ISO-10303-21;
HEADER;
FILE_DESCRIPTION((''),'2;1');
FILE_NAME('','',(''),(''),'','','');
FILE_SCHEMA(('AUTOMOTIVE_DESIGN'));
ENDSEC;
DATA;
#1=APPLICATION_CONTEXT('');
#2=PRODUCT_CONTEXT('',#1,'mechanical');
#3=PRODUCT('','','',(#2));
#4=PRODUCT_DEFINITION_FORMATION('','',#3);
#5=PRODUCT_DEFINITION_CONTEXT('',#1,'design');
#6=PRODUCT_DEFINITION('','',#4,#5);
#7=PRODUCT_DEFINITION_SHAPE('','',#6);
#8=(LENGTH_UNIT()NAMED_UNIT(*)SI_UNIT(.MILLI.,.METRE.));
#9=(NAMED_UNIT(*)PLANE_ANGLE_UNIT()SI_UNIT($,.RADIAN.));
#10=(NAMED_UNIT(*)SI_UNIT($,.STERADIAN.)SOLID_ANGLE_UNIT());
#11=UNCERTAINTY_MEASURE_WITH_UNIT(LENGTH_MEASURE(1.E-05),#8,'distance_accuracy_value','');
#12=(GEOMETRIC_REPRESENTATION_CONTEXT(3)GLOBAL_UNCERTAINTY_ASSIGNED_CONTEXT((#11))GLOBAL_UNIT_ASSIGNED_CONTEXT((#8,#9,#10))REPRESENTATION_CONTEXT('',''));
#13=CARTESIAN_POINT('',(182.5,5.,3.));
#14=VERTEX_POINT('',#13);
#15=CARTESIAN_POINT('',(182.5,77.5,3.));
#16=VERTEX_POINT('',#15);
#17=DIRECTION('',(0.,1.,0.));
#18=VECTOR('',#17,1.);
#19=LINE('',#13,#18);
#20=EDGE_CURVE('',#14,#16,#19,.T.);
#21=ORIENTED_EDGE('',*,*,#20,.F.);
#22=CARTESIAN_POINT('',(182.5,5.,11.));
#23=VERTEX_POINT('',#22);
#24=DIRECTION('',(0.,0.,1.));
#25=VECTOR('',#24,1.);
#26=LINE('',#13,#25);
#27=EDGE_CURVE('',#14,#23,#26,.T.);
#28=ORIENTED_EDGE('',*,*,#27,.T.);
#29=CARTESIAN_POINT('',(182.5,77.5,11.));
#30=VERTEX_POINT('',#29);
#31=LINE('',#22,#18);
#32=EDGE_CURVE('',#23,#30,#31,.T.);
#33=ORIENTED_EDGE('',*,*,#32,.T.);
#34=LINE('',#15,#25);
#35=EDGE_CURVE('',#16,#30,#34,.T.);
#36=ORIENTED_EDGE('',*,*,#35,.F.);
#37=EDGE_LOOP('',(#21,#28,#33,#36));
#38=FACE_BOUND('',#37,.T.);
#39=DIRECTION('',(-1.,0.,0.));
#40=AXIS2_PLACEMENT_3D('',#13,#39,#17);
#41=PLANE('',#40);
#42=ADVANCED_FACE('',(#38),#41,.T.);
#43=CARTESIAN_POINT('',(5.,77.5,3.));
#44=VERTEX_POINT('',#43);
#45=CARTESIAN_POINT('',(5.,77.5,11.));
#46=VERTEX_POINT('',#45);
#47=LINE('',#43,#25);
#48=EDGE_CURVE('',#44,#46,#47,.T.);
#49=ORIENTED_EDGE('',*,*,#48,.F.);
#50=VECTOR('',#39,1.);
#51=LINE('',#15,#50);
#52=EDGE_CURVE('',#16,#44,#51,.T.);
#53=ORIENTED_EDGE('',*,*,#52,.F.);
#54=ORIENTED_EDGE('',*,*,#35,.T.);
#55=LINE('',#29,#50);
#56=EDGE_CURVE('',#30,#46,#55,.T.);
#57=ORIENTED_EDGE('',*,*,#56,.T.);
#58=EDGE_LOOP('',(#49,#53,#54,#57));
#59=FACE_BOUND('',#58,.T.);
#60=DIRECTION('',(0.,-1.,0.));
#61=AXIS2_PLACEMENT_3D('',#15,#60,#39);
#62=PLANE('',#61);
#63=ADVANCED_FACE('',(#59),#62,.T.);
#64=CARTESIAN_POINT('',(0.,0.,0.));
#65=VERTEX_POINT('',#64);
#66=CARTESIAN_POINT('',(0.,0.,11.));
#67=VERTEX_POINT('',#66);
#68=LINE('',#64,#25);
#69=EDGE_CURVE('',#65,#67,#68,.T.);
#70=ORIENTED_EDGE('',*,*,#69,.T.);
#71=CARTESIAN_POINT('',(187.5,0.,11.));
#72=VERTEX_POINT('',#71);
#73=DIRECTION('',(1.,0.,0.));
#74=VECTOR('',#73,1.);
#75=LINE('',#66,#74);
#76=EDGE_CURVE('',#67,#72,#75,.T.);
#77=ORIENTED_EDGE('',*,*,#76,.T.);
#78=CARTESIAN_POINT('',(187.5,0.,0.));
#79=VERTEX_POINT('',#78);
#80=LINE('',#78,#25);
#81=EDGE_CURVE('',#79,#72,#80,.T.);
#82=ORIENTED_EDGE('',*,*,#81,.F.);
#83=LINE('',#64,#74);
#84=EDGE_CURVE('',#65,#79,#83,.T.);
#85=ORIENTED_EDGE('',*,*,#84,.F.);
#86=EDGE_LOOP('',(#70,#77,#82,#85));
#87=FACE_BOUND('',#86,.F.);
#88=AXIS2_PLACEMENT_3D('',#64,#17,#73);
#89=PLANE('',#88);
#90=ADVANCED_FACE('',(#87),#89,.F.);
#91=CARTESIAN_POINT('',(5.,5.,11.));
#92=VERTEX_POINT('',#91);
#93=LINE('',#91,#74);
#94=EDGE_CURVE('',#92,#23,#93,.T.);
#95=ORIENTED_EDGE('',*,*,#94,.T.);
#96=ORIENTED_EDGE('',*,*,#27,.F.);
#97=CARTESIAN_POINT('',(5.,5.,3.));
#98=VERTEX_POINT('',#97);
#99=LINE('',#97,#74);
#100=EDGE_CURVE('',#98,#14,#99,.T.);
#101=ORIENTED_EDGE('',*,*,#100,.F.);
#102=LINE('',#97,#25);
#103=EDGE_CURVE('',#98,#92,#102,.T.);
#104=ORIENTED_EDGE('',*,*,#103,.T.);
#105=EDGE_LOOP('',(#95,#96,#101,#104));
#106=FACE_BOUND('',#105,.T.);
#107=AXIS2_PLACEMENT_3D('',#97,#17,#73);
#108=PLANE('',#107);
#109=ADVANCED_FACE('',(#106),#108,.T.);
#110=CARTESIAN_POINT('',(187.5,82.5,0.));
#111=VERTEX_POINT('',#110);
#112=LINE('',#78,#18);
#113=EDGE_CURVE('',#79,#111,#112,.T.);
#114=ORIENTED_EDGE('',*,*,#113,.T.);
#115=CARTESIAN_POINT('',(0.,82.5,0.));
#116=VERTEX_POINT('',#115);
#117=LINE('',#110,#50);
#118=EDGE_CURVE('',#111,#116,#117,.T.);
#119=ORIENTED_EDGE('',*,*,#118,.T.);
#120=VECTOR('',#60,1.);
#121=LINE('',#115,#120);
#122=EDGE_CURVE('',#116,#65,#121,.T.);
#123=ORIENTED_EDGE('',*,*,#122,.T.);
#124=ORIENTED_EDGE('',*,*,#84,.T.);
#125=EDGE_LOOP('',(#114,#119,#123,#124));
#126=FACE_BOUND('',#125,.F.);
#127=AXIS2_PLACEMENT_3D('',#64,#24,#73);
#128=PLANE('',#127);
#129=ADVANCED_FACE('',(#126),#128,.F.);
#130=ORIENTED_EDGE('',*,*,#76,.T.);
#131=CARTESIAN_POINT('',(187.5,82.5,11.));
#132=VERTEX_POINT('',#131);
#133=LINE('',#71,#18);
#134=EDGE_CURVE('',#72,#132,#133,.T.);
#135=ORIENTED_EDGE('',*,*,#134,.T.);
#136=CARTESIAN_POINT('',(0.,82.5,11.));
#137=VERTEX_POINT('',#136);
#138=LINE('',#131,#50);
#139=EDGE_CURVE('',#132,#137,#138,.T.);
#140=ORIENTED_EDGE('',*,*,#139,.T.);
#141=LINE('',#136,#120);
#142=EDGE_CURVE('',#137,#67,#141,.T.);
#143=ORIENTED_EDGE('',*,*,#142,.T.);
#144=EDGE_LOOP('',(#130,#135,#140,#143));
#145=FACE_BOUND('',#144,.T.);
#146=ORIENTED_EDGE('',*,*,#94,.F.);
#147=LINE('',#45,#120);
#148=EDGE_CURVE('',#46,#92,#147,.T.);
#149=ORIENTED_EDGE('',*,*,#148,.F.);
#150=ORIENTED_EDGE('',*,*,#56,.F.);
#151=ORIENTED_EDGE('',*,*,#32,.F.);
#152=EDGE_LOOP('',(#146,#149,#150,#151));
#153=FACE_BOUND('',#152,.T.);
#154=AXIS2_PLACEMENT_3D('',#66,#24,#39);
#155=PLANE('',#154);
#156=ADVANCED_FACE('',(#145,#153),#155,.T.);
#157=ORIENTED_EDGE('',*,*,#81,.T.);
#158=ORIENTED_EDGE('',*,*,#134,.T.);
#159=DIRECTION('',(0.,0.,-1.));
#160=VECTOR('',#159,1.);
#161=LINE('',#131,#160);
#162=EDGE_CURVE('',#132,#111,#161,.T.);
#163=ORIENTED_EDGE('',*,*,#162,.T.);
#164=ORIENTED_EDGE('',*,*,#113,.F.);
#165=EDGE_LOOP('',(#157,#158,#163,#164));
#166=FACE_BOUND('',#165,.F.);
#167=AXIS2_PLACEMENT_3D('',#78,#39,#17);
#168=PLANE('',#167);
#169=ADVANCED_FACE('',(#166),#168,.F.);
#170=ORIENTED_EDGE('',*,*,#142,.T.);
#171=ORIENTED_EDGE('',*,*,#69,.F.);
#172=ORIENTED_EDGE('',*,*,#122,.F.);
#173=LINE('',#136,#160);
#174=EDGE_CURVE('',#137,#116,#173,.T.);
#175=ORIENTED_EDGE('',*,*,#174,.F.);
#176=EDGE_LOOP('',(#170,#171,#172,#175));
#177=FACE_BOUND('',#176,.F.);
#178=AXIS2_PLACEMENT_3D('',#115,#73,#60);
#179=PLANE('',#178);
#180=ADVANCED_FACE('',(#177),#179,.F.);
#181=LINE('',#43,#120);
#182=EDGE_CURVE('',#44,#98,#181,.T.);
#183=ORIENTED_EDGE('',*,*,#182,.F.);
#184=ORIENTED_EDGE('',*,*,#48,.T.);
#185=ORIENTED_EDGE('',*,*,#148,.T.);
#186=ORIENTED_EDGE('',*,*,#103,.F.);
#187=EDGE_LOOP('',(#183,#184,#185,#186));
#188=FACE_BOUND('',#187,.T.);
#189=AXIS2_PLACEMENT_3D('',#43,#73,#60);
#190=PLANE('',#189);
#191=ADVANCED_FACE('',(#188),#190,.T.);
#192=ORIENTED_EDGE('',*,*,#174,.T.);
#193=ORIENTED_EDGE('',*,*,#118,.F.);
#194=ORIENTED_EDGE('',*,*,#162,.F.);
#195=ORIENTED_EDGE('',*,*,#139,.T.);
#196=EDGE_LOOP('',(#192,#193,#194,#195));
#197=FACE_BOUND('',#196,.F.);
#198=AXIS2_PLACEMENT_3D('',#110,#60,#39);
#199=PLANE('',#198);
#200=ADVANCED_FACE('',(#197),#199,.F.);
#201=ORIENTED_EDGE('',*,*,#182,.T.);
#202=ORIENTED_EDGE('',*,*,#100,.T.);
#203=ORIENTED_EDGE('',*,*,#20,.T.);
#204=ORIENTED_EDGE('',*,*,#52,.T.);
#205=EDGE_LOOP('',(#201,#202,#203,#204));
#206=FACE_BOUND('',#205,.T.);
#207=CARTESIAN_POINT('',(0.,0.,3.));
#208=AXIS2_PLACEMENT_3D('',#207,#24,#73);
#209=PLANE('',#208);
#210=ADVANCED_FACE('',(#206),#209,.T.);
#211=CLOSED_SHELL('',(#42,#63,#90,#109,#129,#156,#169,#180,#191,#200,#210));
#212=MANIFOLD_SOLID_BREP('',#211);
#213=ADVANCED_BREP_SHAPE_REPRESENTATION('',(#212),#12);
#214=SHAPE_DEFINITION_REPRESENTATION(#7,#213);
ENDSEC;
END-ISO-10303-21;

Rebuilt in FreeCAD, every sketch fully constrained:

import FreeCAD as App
import Part
import Sketcher
Q = App.Units.Quantity

doc = App.newDocument("Part")
body = doc.addObject("PartDesign::Body", "Body")

# Sketch on XY plane
sketch1 = body.newObject("Sketcher::SketchObject", "Sketch")
sketch1.AttachmentSupport = (doc.getObject("XY_Plane"), [""])
sketch1.MapMode = "FlatFace"
sketch1.addGeometry([
    Part.LineSegment(App.Vector(0, 82, 0), App.Vector(0, 0, 0)),
    Part.LineSegment(App.Vector(0, 0, 0), App.Vector(188, 0, 0)),
    Part.LineSegment(App.Vector(188, 0, 0), App.Vector(188, 82, 0)),
    Part.LineSegment(App.Vector(188, 82, 0), App.Vector(0, 82, 0)),
], False)
sketch1.addConstraint([
    Sketcher.Constraint("Coincident", 0, 2, 1, 1),
    Sketcher.Constraint("Coincident", 1, 2, 2, 1),
    Sketcher.Constraint("Coincident", 2, 2, 3, 1),
    Sketcher.Constraint("Coincident", 3, 2, 0, 1),
    Sketcher.Constraint("Vertical", 0),
    Sketcher.Constraint("Horizontal", 1),
    Sketcher.Constraint("Vertical", 2),
    Sketcher.Constraint("Horizontal", 3),
    Sketcher.Constraint("Coincident", 0, 2, -1, 1),
    Sketcher.Constraint("DistanceX", 1, 1, 1, 2, Q("187.5 mm")),
    Sketcher.Constraint("DistanceY", 0, 2, 0, 1, Q("82.5 mm")),
])
pad1 = body.newObject("PartDesign::Pad", "Pad")
pad1.Profile = sketch1
pad1.Length = 3

# Sketch on XY plane
sketch2 = body.newObject("Sketcher::SketchObject", "Sketch001")
sketch2.AttachmentSupport = (doc.getObject("XY_Plane"), [""])
sketch2.MapMode = "FlatFace"
sketch2.AttachmentOffset = App.Placement(App.Vector(0, 0, 3), App.Rotation())
sketch2.addGeometry([
    Part.LineSegment(App.Vector(188, 82, 0), App.Vector(0, 82, 0)),  # 0
    Part.LineSegment(App.Vector(0, 82, 0), App.Vector(0, 0, 0)),  # 1
    Part.LineSegment(App.Vector(0, 0, 0), App.Vector(188, 0, 0)),  # 2
    Part.LineSegment(App.Vector(188, 0, 0), App.Vector(188, 82, 0)),  # 3
    Part.LineSegment(App.Vector(182, 5, 0), App.Vector(5, 5, 0)),  # 4
    Part.LineSegment(App.Vector(5, 5, 0), App.Vector(5, 78, 0)),  # 5
    Part.LineSegment(App.Vector(5, 78, 0), App.Vector(182, 78, 0)),  # 6
    Part.LineSegment(App.Vector(182, 78, 0), App.Vector(182, 5, 0)),  # 7
], False)
sketch2.addConstraint([
    Sketcher.Constraint("Coincident", 0, 2, 1, 1),
    Sketcher.Constraint("Coincident", 1, 2, 2, 1),
    Sketcher.Constraint("Coincident", 2, 2, 3, 1),
    Sketcher.Constraint("Coincident", 3, 2, 0, 1),
    Sketcher.Constraint("Coincident", 4, 2, 5, 1),
    Sketcher.Constraint("Coincident", 5, 2, 6, 1),
    Sketcher.Constraint("Coincident", 6, 2, 7, 1),
    Sketcher.Constraint("Coincident", 7, 2, 4, 1),
    Sketcher.Constraint("Horizontal", 0),
    Sketcher.Constraint("Vertical", 1),
    Sketcher.Constraint("Horizontal", 2),
    Sketcher.Constraint("Vertical", 3),
    Sketcher.Constraint("Horizontal", 4),
    Sketcher.Constraint("Vertical", 5),
    Sketcher.Constraint("Horizontal", 6),
    Sketcher.Constraint("Vertical", 7),
    Sketcher.Constraint("Coincident", 1, 2, -1, 1),
    Sketcher.Constraint("DistanceX", -1, 1, 4, 2, Q("5 mm")),
    Sketcher.Constraint("DistanceY", -1, 1, 4, 2, Q("5 mm")),
    Sketcher.Constraint("DistanceY", 5, 2, 0, 2, Q("5 mm")),
    Sketcher.Constraint("DistanceX", 6, 2, 3, 2, Q("5 mm")),
    Sketcher.Constraint("DistanceX", 0, 2, 0, 1, Q("187.5 mm")),
    Sketcher.Constraint("DistanceY", 1, 2, 1, 1, Q("82.5 mm")),
])
pad2 = body.newObject("PartDesign::Pad", "Pad001")
pad2.Profile = sketch2
pad2.Length = 8

doc.recompute()
